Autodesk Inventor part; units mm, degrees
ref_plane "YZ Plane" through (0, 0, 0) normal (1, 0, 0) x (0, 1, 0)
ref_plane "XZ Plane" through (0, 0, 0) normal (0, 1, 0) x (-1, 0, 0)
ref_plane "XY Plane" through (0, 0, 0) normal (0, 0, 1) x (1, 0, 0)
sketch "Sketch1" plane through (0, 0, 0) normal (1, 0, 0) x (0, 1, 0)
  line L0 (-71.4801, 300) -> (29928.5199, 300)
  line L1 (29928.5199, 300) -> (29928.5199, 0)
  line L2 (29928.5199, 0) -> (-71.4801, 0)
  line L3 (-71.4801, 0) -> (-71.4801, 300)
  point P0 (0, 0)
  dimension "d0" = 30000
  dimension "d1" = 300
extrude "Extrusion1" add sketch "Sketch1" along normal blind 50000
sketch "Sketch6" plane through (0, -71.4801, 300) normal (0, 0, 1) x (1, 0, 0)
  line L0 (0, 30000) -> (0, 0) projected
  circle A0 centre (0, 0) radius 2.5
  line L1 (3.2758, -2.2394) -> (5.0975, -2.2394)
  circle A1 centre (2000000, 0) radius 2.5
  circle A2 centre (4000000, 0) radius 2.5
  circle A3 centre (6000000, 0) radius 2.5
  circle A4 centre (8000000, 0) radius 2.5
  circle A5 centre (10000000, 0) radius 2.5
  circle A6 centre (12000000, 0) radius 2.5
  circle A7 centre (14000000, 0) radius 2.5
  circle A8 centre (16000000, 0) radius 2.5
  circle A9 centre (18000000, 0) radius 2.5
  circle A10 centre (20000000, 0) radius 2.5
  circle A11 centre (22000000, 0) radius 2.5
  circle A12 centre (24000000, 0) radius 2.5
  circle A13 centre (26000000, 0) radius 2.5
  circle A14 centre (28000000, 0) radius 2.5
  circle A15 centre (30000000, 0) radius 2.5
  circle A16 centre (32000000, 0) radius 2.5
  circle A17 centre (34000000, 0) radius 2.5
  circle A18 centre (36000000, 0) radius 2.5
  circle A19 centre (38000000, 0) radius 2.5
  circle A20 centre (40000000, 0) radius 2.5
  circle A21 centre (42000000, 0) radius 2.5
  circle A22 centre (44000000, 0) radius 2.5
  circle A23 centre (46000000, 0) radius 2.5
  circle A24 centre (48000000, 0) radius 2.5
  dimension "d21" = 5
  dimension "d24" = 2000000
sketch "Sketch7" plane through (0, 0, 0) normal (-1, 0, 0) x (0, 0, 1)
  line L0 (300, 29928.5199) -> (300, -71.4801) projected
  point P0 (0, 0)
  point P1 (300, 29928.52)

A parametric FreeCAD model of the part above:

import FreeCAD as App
import Part
import Sketcher
from FreeCAD import Vector

doc = App.newDocument("Part")
params = doc.addObject("Spreadsheet::Sheet", "Params")
for row, (alias, value) in enumerate([
    ("sketch1_width", "30000 mm"),
    ("sketch1_height", "300 mm"),
    ("pad1_length", "50000 mm"),
], start=1):
    params.set(f"A{row}", alias)
    params.set(f"B{row}", "=" + value)
    params.setAlias(f"B{row}", alias)

body = doc.addObject("PartDesign::Body", "Body")

# Sketch on YZ plane
sketch1 = body.newObject("Sketcher::SketchObject", "Sketch")
sketch1.AttachmentSupport = (doc.getObject("YZ_Plane"), [""])
sketch1.MapMode = "FlatFace"
sketch1.addGeometry([
    Part.LineSegment(Vector(29928.5199, 300, 0), Vector(-71.4801, 300, 0)),
    Part.LineSegment(Vector(-71.4801, 300, 0), Vector(-71.4801, 0, 0)),
    Part.LineSegment(Vector(-71.4801, 0, 0), Vector(29928.5199, 0, 0)),
    Part.LineSegment(Vector(29928.5199, 0, 0), Vector(29928.5199, 300, 0)),
], False)
sketch1.addConstraint([
    Sketcher.Constraint("Coincident", 0, 2, 1, 1),
    Sketcher.Constraint("Coincident", 1, 2, 2, 1),
    Sketcher.Constraint("Coincident", 2, 2, 3, 1),
    Sketcher.Constraint("Coincident", 3, 2, 0, 1),
    Sketcher.Constraint("Horizontal", 0),
    Sketcher.Constraint("Vertical", 1),
    Sketcher.Constraint("Horizontal", 2),
    Sketcher.Constraint("Vertical", 3),
    Sketcher.Constraint("PointOnObject", 1, 2, -1),
    Sketcher.Constraint("DistanceX", 0, 2, 0, 1, 30000.0),
    Sketcher.Constraint("DistanceY", 1, 2, 1, 1, 300.0),
    Sketcher.Constraint("DistanceX", 0, 2, -1, 1, 71.48),
])
sketch1.setExpression("Constraints[9]", "Params.sketch1_width")
sketch1.setExpression("Constraints[10]", "Params.sketch1_height")
pad1 = body.newObject("PartDesign::Pad", "Pad")
pad1.Profile = sketch1
pad1.setExpression("Length", "Params.pad1_length")

doc.recompute()
